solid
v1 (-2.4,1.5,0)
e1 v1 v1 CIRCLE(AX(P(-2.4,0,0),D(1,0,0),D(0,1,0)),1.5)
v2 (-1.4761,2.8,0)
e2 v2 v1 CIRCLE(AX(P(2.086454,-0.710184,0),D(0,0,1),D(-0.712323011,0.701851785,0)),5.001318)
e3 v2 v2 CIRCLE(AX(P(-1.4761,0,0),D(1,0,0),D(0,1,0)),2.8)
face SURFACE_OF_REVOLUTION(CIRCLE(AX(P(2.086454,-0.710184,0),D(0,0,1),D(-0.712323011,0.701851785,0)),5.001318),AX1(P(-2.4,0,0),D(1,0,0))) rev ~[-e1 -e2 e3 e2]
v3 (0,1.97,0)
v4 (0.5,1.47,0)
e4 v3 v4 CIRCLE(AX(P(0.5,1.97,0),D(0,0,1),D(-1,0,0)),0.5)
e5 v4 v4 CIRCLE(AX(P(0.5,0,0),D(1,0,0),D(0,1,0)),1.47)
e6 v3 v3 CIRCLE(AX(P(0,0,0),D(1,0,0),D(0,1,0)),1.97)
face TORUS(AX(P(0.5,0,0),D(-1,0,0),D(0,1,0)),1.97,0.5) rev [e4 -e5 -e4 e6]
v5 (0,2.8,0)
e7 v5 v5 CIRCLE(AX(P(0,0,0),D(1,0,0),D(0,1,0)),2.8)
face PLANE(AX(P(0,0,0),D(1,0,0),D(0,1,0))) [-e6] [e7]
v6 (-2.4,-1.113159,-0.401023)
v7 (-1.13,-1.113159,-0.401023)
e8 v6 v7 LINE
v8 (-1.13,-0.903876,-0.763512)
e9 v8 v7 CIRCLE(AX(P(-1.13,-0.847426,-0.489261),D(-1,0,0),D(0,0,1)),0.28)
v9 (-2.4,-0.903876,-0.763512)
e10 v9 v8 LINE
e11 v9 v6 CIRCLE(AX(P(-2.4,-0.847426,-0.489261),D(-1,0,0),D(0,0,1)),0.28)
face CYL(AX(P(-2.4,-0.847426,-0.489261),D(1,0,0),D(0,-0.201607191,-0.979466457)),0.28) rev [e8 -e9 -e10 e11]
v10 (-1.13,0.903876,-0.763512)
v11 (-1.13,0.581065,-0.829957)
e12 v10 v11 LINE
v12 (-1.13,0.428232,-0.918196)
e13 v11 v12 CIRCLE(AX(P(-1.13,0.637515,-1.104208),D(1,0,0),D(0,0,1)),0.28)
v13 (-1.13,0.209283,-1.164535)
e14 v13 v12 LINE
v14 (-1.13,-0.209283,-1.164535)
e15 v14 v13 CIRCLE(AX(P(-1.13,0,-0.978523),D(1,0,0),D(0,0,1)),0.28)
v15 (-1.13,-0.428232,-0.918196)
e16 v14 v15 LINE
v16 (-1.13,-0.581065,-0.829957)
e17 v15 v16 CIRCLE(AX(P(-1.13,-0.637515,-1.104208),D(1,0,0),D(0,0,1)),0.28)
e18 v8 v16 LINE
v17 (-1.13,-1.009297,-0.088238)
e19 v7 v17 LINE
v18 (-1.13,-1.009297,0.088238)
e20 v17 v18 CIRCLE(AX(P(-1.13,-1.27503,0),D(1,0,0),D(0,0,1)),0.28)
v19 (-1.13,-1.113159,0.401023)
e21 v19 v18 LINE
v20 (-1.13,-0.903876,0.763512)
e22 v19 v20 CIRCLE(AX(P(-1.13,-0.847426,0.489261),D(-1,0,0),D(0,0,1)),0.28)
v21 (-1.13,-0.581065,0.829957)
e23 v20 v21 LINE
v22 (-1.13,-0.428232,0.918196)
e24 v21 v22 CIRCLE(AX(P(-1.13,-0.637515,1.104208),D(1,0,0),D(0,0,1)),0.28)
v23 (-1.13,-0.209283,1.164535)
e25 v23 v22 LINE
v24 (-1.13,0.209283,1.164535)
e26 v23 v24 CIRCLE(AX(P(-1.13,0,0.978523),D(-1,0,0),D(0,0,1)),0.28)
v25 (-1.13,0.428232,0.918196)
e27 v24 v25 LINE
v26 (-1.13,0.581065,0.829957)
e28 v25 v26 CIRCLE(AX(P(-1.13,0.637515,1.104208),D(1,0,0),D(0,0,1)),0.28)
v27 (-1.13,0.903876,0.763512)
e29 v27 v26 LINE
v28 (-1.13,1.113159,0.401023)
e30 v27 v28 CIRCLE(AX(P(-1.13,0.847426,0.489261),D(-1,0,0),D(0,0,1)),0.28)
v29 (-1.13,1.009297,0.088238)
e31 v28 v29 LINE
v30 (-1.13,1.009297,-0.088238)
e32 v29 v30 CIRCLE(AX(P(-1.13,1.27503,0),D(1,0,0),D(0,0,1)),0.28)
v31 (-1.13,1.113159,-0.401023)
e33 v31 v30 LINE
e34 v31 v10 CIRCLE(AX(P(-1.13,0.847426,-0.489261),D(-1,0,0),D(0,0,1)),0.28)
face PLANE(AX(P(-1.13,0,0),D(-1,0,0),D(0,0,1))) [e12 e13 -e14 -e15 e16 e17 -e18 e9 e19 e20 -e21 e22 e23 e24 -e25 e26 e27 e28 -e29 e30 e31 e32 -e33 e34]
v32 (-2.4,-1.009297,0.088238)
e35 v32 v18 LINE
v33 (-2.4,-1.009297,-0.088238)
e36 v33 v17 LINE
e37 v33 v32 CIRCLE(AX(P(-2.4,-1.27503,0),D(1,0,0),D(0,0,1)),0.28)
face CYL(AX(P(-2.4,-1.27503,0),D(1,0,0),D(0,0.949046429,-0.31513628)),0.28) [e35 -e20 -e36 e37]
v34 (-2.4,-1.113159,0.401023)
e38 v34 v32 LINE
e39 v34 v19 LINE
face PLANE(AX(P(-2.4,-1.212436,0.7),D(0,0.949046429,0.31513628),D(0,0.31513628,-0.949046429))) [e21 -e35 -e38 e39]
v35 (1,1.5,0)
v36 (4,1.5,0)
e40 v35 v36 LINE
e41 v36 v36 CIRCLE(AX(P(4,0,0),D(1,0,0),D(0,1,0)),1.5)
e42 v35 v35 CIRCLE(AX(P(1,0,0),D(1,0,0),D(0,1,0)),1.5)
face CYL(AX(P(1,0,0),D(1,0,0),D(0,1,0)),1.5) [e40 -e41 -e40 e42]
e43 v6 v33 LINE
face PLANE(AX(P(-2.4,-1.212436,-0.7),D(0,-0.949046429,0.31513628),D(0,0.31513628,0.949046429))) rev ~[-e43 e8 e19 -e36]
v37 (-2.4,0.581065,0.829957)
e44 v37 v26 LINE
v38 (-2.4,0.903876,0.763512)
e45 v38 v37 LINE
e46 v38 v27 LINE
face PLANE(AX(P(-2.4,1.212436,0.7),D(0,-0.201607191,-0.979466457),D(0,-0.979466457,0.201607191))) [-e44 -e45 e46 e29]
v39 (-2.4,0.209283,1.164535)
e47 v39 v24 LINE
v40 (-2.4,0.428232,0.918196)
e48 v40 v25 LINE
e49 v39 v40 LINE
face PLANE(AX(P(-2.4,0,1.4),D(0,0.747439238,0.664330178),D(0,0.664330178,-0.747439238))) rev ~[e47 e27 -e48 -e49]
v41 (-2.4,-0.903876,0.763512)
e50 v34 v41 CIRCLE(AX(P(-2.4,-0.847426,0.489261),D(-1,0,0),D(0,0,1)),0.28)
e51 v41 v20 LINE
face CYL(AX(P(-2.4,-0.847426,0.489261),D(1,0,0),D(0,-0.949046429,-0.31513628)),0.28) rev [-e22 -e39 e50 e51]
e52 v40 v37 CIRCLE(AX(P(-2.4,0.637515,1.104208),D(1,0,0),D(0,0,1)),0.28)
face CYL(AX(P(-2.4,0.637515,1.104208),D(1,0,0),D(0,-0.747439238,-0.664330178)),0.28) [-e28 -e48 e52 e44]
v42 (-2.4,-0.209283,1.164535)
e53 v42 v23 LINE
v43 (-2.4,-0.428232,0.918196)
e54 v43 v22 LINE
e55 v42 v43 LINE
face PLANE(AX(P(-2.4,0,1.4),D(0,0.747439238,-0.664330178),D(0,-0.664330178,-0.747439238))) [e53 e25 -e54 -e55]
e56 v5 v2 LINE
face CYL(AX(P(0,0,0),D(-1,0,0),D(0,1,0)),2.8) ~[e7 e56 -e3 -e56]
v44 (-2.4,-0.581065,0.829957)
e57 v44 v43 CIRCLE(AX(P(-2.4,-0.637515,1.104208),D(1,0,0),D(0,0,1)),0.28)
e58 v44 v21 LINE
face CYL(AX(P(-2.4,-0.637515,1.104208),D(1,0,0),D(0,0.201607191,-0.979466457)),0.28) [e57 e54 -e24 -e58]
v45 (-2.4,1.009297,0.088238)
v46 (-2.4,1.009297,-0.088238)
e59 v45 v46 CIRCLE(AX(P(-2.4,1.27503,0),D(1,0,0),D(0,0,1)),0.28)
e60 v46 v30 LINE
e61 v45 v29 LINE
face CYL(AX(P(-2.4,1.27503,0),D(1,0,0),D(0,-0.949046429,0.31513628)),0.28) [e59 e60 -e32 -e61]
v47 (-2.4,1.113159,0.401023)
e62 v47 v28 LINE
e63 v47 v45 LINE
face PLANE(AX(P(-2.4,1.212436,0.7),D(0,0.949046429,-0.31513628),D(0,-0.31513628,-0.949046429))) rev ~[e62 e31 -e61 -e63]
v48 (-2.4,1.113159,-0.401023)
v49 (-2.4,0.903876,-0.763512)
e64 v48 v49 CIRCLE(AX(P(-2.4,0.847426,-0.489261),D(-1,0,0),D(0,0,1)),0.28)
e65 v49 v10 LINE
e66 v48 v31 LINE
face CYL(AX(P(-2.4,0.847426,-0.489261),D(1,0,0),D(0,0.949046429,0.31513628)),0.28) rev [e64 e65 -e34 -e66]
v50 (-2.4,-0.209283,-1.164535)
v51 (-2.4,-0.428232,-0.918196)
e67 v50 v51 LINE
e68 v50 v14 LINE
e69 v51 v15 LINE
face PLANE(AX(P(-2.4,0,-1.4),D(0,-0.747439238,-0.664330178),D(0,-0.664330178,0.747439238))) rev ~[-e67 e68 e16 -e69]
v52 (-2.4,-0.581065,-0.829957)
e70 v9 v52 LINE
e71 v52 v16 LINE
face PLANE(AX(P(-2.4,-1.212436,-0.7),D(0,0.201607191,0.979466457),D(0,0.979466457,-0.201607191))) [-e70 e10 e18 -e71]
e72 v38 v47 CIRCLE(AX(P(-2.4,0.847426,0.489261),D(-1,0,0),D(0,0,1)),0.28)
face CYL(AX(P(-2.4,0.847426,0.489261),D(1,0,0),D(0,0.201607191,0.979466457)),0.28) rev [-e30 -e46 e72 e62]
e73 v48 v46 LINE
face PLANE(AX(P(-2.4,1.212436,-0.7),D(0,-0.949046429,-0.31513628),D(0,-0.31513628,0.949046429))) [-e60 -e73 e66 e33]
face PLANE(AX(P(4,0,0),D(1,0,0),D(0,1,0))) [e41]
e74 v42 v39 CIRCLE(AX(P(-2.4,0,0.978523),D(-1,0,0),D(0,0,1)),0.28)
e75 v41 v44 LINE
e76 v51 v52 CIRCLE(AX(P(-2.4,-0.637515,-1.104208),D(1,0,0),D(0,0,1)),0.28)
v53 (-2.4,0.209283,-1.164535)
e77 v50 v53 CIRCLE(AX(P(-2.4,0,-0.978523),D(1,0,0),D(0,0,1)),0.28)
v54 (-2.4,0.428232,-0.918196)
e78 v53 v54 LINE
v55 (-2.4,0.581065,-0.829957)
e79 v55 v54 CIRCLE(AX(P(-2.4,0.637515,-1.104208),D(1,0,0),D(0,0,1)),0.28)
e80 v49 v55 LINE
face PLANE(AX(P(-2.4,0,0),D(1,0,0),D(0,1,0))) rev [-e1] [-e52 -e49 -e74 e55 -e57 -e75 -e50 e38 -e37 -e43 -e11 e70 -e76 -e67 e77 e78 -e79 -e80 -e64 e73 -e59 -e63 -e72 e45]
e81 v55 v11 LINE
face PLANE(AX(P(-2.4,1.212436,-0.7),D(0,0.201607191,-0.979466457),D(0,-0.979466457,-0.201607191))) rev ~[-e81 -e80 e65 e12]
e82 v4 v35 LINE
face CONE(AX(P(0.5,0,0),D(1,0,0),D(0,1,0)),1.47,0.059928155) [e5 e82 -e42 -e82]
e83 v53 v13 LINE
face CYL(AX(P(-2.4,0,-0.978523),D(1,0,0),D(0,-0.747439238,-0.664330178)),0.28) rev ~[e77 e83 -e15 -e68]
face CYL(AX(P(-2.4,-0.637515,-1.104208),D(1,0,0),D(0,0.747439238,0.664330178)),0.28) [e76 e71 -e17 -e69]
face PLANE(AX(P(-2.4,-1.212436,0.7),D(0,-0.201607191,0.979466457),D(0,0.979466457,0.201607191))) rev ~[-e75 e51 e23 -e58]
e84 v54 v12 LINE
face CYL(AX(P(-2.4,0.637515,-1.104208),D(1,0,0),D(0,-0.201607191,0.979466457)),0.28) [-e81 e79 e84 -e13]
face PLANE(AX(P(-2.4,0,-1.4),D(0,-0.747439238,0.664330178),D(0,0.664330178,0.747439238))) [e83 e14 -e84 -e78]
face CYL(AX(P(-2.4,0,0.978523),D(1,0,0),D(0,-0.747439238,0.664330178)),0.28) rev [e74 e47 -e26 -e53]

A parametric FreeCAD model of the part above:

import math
import FreeCAD as App
import Part
import Sketcher
from FreeCAD import Vector
Q = App.Units.Quantity


def edges_at(feature, points):
    """Names of the edges that pass closest to the given points."""
    edges = feature.Shape.Edges
    near = lambda p: min(range(len(edges)), key=lambda i: edges[i].distToShape(Part.Vertex(*p))[0])
    return sorted({f"Edge{near(p) + 1}" for p in points})

doc = App.newDocument("Part")
body = doc.addObject("PartDesign::Body", "Body")

# Sketch on XY plane
sketch1 = body.newObject("Sketcher::SketchObject", "Sketch")
sketch1.AttachmentSupport = (doc.getObject("XY_Plane"), [""])
sketch1.MapMode = "FlatFace"
sketch1.addGeometry([
    Part.LineSegment(Vector(-2.4, 1.5, 0), Vector(-2.4, 0, 0)),  # 0
    Part.LineSegment(Vector(-2.4, 0, 0), Vector(4, 0, 0)),  # 1
    Part.LineSegment(Vector(4, 0, 0), Vector(4, 1.5, 0)),  # 2
    Part.LineSegment(Vector(4, 1.5, 0), Vector(1, 1.5, 0)),  # 3
    Part.LineSegment(Vector(1, 1.5, 0), Vector(0.5, 1.5, 0)),  # 4
    Part.ArcOfCircle(Part.Circle(Vector(0.5, 2, 0), Vector(0, 0, 1), 0.5), math.radians(180), math.radians(270)),  # 5
    Part.LineSegment(Vector(0, 2, 0), Vector(0, 2.8, 0)),  # 6
    Part.LineSegment(Vector(0, 2.8, 0), Vector(-1.5, 2.8, 0)),  # 7
    Part.ArcOfCircle(Part.Circle(Vector(2.1, -0.7, 0), Vector(0, 0, 1), 5), math.radians(135.42), math.radians(153.77)),  # 8
], False)
sketch1.addConstraint([
    Sketcher.Constraint("Coincident", 0, 2, 1, 1),
    Sketcher.Constraint("Coincident", 1, 2, 2, 1),
    Sketcher.Constraint("Coincident", 2, 2, 3, 1),
    Sketcher.Constraint("Coincident", 3, 2, 4, 1),
    Sketcher.Constraint("Coincident", 4, 2, 5, 2),
    Sketcher.Constraint("Tangent", 5, 1, 6, 1),
    Sketcher.Constraint("Coincident", 6, 2, 7, 1),
    Sketcher.Constraint("Coincident", 7, 2, 8, 1),
    Sketcher.Constraint("Coincident", 8, 2, 0, 1),
    Sketcher.Constraint("Vertical", 0),
    Sketcher.Constraint("Horizontal", 1),
    Sketcher.Constraint("Vertical", 2),
    Sketcher.Constraint("Horizontal", 3),
    Sketcher.Constraint("Vertical", 6),
    Sketcher.Constraint("Horizontal", 7),
    Sketcher.Constraint("PointOnObject", 0, 2, -1),
    Sketcher.Constraint("PointOnObject", 5, 1, -2),
    Sketcher.Constraint("Horizontal", 3, 2, 8, 2),
    Sketcher.Constraint("Vertical", 5, 3, 4, 2),
    Sketcher.Constraint("Radius", 5, 0.5),
    Sketcher.Constraint("DistanceX", 3, 2, 3, 1, 3.0),
    Sketcher.Constraint("DistanceX", -1, 1, 1, 2, 4.0),
    Sketcher.Constraint("DistanceX", 0, 2, -1, 1, 2.4),
    Sketcher.Constraint("DistanceY", 0, 2, 0, 1, 1.5),
    Sketcher.Constraint("DistanceY", 6, 1, 6, 2, 0.83),
    Sketcher.Constraint("DistanceY", -1, 1, 6, 2, 2.8),
    Sketcher.Constraint("Radius", 8, 5.0013),
    Sketcher.Constraint("DistanceX", 7, 2, 7, 1, 1.476),
])
revolution = body.newObject("PartDesign::Revolution", "Revolution")
revolution.Profile = sketch1
revolution.ReferenceAxis = (sketch1, ["H_Axis"])
revolution.Angle = 360

# Sketch on YZ plane
sketch2 = body.newObject("Sketcher::SketchObject", "Sketch001")
sketch2.AttachmentSupport = (doc.getObject("YZ_Plane"), [""])
sketch2.MapMode = "FlatFace"
sketch2.AttachmentOffset = App.Placement(Vector(0, 0, -2.4), App.Rotation())
sketch2.addGeometry([
    Part.LineSegment(Vector(0.5, -0.8, 0), Vector(0, -1.4, 0)),
    Part.LineSegment(Vector(0, -1.4, 0), Vector(-0.5, -0.8, 0)),
    Part.LineSegment(Vector(-0.5, -0.8, 0), Vector(0, 0, 0)),
    Part.LineSegment(Vector(0, 0, 0), Vector(0.5, -0.8, 0)),
], False)
sketch2.addConstraint([
    Sketcher.Constraint("Coincident", 0, 2, 1, 1),
    Sketcher.Constraint("Coincident", 1, 2, 2, 1),
    Sketcher.Constraint("Coincident", 2, 2, 3, 1),
    Sketcher.Constraint("Coincident", 3, 2, 0, 1),
    Sketcher.Constraint("Coincident", 2, 2, -1, 1),
    Sketcher.Constraint("Symmetric", 1, 2, 3, 2, -2),
    Sketcher.Constraint("PointOnObject", 0, 2, -2),
    Sketcher.Constraint("Angle", 2, Q("59.9999 deg")),
    Sketcher.Constraint("DistanceY", 0, 2, -1, 1, 1.4),
    Sketcher.Constraint("Angle", 0, Q("-131.631 deg")),
])
pocket1 = body.newObject("PartDesign::Pocket", "Pocket")
pocket1.Profile = sketch2
pocket1.Length = 1.27
pocket1.Reversed = True
doc.recompute()

polarpattern = body.newObject("PartDesign::PolarPattern", "PolarPattern")
polarpattern.Originals = [pocket1]
polarpattern.Axis = (doc.getObject("X_Axis"), [""])
polarpattern.Angle = 360
polarpattern.Occurrences = 6
body.Tip = polarpattern
doc.recompute()

fillet = body.newObject("PartDesign::Fillet", "Fillet")
fillet.Base = (polarpattern, edges_at(polarpattern, [
    (-1.765, -1.212, -0.7),
    (-1.765, -0.49, -0.849),
    (-1.765, -0.98, 0),
    (-1.765, -1.212, 0.7),
    (-1.765, -0.49, 0.849),
    (-1.765, 0, 1.4),
    (-1.765, 0.98, 0),
    (-1.765, 1.212, 0.7),
    (-1.765, 0.49, 0.849),
    (-1.765, 0.49, -0.849),
    (-1.765, 0, -1.4),
    (-1.765, 1.212, -0.7),
]))
fillet.Radius = 0.28

doc.recompute()
